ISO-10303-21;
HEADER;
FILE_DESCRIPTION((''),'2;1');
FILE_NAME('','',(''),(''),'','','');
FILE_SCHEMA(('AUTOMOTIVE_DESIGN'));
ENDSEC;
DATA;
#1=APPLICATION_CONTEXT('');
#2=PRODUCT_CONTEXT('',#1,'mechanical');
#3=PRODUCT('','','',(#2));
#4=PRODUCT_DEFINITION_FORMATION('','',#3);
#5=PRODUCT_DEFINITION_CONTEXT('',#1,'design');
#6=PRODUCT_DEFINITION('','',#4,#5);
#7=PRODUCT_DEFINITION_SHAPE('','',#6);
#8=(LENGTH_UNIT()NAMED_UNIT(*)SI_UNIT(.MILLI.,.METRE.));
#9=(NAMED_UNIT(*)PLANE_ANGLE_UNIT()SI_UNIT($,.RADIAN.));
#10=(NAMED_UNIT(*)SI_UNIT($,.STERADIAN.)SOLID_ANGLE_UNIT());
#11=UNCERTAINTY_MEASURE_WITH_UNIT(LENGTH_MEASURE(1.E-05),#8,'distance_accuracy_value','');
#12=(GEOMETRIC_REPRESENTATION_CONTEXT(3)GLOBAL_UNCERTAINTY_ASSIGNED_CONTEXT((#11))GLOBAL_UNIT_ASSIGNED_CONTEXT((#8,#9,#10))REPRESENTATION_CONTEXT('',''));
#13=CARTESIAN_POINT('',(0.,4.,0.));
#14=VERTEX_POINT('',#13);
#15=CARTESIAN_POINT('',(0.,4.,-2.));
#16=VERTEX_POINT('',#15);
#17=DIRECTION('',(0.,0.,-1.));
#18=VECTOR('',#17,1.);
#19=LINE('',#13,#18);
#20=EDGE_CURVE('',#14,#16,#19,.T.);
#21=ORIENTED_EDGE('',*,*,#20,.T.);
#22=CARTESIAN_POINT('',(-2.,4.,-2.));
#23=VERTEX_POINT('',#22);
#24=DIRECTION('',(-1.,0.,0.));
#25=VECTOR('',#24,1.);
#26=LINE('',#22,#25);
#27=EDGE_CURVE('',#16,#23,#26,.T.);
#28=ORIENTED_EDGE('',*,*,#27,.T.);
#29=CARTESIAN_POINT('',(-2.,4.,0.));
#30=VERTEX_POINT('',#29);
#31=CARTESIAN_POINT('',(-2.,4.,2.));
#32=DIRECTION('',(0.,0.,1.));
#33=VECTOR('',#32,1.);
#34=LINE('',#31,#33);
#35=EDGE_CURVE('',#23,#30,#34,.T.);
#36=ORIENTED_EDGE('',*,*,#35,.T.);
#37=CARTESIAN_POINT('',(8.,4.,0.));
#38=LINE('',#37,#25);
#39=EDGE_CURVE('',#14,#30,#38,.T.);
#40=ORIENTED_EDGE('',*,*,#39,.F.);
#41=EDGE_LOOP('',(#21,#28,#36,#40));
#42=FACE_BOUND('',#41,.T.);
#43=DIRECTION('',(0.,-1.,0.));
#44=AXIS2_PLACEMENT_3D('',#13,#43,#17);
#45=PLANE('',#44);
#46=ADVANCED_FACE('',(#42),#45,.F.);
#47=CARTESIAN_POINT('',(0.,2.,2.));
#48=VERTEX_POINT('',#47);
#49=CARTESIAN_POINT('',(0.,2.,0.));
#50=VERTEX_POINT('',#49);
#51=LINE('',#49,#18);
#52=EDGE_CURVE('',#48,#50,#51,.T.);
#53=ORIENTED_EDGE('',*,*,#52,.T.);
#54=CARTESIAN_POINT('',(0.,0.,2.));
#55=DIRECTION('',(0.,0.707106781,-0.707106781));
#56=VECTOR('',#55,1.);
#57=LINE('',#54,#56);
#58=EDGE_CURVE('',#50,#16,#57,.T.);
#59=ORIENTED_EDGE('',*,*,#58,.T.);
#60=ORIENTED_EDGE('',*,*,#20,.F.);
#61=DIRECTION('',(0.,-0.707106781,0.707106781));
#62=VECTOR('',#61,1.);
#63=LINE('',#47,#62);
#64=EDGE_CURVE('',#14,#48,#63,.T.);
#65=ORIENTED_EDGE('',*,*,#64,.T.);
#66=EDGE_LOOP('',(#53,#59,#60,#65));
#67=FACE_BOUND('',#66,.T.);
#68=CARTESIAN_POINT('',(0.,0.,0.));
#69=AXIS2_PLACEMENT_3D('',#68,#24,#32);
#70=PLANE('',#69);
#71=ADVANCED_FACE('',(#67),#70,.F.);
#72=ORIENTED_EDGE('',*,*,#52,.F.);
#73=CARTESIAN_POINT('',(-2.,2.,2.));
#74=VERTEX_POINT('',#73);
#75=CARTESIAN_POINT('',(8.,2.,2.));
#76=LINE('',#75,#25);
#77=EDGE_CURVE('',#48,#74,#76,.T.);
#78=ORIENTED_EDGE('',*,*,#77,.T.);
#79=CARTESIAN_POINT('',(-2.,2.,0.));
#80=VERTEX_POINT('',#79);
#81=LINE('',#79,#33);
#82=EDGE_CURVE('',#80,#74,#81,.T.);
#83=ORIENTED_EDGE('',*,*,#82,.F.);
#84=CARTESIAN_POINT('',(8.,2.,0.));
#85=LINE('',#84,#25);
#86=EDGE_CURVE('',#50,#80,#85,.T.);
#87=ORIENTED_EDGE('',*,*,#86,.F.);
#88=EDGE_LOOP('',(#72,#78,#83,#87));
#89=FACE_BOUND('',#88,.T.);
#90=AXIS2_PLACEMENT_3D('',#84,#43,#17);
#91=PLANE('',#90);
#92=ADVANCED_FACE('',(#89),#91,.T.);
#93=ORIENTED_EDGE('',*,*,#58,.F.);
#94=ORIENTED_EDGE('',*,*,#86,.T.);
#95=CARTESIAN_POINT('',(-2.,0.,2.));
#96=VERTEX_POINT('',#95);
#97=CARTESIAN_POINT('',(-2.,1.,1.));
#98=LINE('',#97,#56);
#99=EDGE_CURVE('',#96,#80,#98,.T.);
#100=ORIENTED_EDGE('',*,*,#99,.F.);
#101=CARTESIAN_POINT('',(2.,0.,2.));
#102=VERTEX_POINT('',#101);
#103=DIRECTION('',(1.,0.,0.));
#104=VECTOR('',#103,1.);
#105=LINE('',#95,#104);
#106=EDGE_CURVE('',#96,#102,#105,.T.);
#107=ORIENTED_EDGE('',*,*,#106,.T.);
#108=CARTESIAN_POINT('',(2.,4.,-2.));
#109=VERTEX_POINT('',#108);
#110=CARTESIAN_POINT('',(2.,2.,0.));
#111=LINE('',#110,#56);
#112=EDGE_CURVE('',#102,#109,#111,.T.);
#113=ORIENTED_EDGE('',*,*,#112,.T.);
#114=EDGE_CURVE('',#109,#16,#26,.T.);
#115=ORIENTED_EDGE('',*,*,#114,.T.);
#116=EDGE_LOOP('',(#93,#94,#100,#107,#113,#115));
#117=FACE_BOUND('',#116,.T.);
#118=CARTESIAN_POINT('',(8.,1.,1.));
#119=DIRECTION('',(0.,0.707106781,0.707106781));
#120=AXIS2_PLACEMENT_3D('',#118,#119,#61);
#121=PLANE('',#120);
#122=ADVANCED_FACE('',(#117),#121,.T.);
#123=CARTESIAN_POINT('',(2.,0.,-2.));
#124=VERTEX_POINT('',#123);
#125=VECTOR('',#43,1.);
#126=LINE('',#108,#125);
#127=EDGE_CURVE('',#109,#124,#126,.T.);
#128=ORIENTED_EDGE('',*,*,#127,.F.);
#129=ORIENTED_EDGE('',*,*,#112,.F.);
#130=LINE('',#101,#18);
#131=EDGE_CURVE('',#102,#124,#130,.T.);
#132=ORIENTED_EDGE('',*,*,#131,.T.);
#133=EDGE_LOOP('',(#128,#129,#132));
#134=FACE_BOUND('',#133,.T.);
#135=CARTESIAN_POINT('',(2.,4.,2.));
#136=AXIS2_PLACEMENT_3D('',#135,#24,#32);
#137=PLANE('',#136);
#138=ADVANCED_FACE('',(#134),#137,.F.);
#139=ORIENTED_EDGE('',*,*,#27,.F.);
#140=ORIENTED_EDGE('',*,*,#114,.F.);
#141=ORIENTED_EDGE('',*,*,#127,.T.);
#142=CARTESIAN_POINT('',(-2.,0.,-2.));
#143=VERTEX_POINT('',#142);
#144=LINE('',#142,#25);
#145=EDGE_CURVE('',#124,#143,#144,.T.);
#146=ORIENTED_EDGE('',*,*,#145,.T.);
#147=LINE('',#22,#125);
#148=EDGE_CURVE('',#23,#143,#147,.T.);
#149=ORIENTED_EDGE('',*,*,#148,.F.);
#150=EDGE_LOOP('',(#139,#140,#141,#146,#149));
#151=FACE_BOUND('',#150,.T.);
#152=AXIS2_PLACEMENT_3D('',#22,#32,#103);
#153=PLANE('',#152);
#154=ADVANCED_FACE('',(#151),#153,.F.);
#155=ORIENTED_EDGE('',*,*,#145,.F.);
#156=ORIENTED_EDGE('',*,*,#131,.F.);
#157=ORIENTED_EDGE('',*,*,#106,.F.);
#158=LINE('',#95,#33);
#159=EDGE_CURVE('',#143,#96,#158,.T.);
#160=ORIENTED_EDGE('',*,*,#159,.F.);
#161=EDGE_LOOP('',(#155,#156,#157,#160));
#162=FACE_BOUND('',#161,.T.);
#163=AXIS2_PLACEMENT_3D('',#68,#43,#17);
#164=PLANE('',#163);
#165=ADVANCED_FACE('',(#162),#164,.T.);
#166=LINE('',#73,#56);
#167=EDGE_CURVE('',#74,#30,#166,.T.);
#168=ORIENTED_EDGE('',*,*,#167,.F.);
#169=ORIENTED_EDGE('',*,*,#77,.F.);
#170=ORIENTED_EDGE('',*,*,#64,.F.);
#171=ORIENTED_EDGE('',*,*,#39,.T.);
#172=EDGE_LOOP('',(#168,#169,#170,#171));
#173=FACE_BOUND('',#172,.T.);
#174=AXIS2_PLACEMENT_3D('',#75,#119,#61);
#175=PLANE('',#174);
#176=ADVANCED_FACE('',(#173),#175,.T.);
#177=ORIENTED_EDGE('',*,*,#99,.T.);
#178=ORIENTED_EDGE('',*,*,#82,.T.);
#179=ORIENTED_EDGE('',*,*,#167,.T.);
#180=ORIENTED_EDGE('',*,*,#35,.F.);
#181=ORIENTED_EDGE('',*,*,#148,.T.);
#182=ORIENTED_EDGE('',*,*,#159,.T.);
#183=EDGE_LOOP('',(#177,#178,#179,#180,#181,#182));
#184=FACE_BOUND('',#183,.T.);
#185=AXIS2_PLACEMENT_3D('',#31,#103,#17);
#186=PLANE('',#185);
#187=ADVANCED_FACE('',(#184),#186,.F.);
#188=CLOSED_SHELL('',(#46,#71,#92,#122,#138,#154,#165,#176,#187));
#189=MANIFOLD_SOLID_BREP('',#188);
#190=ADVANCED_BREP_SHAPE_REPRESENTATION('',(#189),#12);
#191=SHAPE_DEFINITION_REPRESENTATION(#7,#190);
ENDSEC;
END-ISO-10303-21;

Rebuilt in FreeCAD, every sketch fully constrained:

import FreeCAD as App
import Part
import Sketcher

V = App.Vector
Q = App.Units.Quantity


def add_polygon(sketch, points):
    """Adds a closed chain of lines whose ends are joined by coincident constraints."""
    first, n = sketch.GeometryCount, len(points)
    for a, b in zip(points, points[1:] + points[:1]):
        sketch.addGeometry(Part.LineSegment(App.Vector(*a, 0), App.Vector(*b, 0)), False)
    for i in range(n):
        sketch.addConstraint(Sketcher.Constraint("Coincident", first + i, 2, first + (i + 1) % n, 1))

doc = App.newDocument("Part")
params = doc.addObject("Spreadsheet::Sheet", "Params")
for row, (alias, value) in enumerate([
    ("sketch1_width", "4 mm"),
    ("pad1_length", "4 mm"),
    ("sketch2_width", "2 mm"),
    ("pocket1_length", "10 mm"),
    ("pocket2_length", "2 mm"),
], start=1):
    params.set(f"A{row}", alias)
    params.set(f"B{row}", "=" + value)
    params.setAlias(f"B{row}", alias)

body = doc.addObject("PartDesign::Body", "Body")

# Sketch on XZ plane
sketch1 = doc.addObject("Sketcher::SketchObject", "Sketch")
body.addObject(sketch1)
sketch1.AttachmentSupport = (doc.XZ_Plane, [""])
sketch1.MapMode = "FlatFace"
add_polygon(sketch1, [(-2, -2), (-2, 2), (2, 2), (2, -2)])  # lines 0-3
sketch1.addConstraint([
    Sketcher.Constraint("Vertical", 0),
    Sketcher.Constraint("Horizontal", 1),
    Sketcher.Constraint("Vertical", 2),
    Sketcher.Constraint("Horizontal", 3),
    Sketcher.Constraint("Symmetric", 0, 2, 2, 2, -1, 1),
    Sketcher.Constraint("Equal", 3, 0),
    Sketcher.Constraint("DistanceX", 1, 1, 1, 2, Q("4 mm")),
])
sketch1.setExpression("Constraints[10]", "Params.sketch1_width")
pad1 = doc.addObject("PartDesign::Pad", "Pad")
body.addObject(pad1)
pad1.Profile = sketch1
pad1.setExpression("Length", "Params.pad1_length")
pad1.Reversed = True

# Sketch on YZ plane
sketch2 = doc.addObject("Sketcher::SketchObject", "Sketch001")
body.addObject(sketch2)
sketch2.AttachmentSupport = (doc.YZ_Plane, [""])
sketch2.MapMode = "FlatFace"
sketch2.AttachmentOffset = App.Placement(V(0, 0, -2), App.Rotation())
add_polygon(sketch2, [(2, 0), (0, 2), (2, 2)])  # lines 0-2
add_polygon(sketch2, [(4, 0), (2, 2), (4, 2)])  # lines 3-5
sketch2.addConstraint([
    Sketcher.Constraint("Horizontal", 1),
    Sketcher.Constraint("Vertical", 2),
    Sketcher.Constraint("Horizontal", 4),
    Sketcher.Constraint("Vertical", 5),
    Sketcher.Constraint("Coincident", 3, 2, 1, 2),
    Sketcher.Constraint("PointOnObject", 0, 2, -2),
    Sketcher.Constraint("PointOnObject", 2, 2, -1),
    Sketcher.Constraint("PointOnObject", 5, 2, -1),
    Sketcher.Constraint("Parallel", 0, 3),
    Sketcher.Constraint("Equal", 4, 2),
    Sketcher.Constraint("DistanceX", 1, 1, 1, 2, Q("2 mm")),
])
sketch2.setExpression("Constraints[16]", "Params.sketch2_width")
pocket1 = doc.addObject("PartDesign::Pocket", "Pocket")
body.addObject(pocket1)
pocket1.Profile = sketch2
pocket1.setExpression("Length", "Params.pocket1_length")
pocket1.Reversed = True

# Sketch on YZ plane
sketch3 = doc.addObject("Sketcher::SketchObject", "Sketch002")
body.addObject(sketch3)
sketch3.AttachmentSupport = (doc.YZ_Plane, [""])
sketch3.MapMode = "FlatFace"
sketch3.AttachmentOffset = App.Placement(V(0, 0, 2), App.Rotation())
add_polygon(sketch3, [(0, 2), (4, -2), (4.1, 2)])  # lines 0-2
sketch3.addConstraint([
    Sketcher.Constraint("Horizontal", 2),
    Sketcher.Constraint("PointOnObject", 2, 2, -2),
    Sketcher.Constraint("Angle", 0, Q("-45 deg")),
    Sketcher.Constraint("DistanceX", -1, 1, 0, 2, Q("4 mm")),
    Sketcher.Constraint("DistanceY", 0, 2, -1, 1, Q("2 mm")),
    Sketcher.Constraint("DistanceX", 2, 2, 2, 1, Q("4.116557 mm")),
])
pocket2 = doc.addObject("PartDesign::Pocket", "Pocket001")
body.addObject(pocket2)
pocket2.Profile = sketch3
pocket2.setExpression("Length", "Params.pocket2_length")

doc.recompute()
